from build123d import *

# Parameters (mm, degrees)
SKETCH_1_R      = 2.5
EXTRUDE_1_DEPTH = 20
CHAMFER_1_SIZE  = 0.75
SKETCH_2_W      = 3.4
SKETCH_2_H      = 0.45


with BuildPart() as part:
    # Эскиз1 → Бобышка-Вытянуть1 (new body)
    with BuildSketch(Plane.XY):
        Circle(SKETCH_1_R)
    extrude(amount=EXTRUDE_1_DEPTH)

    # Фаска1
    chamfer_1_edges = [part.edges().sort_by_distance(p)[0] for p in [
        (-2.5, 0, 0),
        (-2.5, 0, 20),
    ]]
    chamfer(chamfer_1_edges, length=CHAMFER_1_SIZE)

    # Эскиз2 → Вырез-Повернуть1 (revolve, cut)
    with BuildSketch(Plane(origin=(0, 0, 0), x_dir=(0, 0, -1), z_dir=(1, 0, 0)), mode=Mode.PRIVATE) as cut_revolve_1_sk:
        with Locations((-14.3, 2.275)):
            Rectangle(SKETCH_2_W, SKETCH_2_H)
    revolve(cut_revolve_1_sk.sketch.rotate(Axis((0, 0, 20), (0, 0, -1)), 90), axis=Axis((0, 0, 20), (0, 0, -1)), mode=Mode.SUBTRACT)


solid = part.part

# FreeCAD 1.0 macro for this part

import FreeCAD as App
import Part
import Sketcher
from FreeCAD import Vector
Q = App.Units.Quantity


def edges_at(feature, points):
    """Names of the edges that pass closest to the given points."""
    edges = feature.Shape.Edges
    near = lambda p: min(range(len(edges)), key=lambda i: edges[i].distToShape(Part.Vertex(*p))[0])
    return sorted({f"Edge{near(p) + 1}" for p in points})


def add_polygon(sketch, points):
    """Adds a closed chain of lines whose ends are joined by coincident constraints."""
    first, n = sketch.GeometryCount, len(points)
    for a, b in zip(points, points[1:] + points[:1]):
        sketch.addGeometry(Part.LineSegment(App.Vector(*a, 0), App.Vector(*b, 0)), False)
    for i in range(n):
        sketch.addConstraint(Sketcher.Constraint("Coincident", first + i, 2, first + (i + 1) % n, 1))

doc = App.newDocument("Part")
params = doc.addObject("Spreadsheet::Sheet", "Params")
for row, (alias, value) in enumerate([
    ("sketch1_diameter", "5 mm"),
    ("pad1_length", "20 mm"),
    ("chamfer_size", "0.75 mm"),
    ("sketch2_height", "3.4 mm"),
    ("sketch2_width", "0.45 mm"),
    ("groove_angle", "360 deg"),
], start=1):
    params.set(f"A{row}", alias)
    params.set(f"B{row}", "=" + value)
    params.setAlias(f"B{row}", alias)

body = doc.addObject("PartDesign::Body", "Body")

sketch1 = body.newObject("Sketcher::SketchObject", "Sketch")
sketch1.AttachmentSupport = (doc.getObject("XY_Plane"), [""])
sketch1.MapMode = "FlatFace"
sketch1.addGeometry(Part.Circle(Vector(0, 0, 0), Vector(0, 0, 1), 2.5), False)
sketch1.addConstraint([
    Sketcher.Constraint("Coincident", 0, 3, -1, 1),
    Sketcher.Constraint("Diameter", 0, Q("5 mm")),
])
sketch1.setExpression("Constraints[1]", "Params.sketch1_diameter")
pad1 = body.newObject("PartDesign::Pad", "Pad")
pad1.Profile = sketch1
pad1.setExpression("Length", "Params.pad1_length")
doc.recompute()

chamfer = body.newObject("PartDesign::Chamfer", "Chamfer")
chamfer.Base = (pad1, edges_at(pad1, [(-2.5, 0, 0), (-2.5, 0, 20)]))
chamfer.setExpression("Size", "Params.chamfer_size")

sketch2 = body.newObject("Sketcher::SketchObject", "Sketch001")
sketch2.AttachmentSupport = (doc.getObject("YZ_Plane"), [""])
sketch2.MapMode = "FlatFace"
add_polygon(sketch2, [(2.5, 16), (2.05, 16), (2.05, 12.6), (2.5, 12.6)])
sketch2.addConstraint([
    Sketcher.Constraint("Horizontal", 0),
    Sketcher.Constraint("Vertical", 1),
    Sketcher.Constraint("Horizontal", 2),
    Sketcher.Constraint("Vertical", 3),
    Sketcher.Constraint("DistanceY", 1, 2, 1, 1, Q("3.4 mm")),
    Sketcher.Constraint("DistanceY", -1, 1, 0, 2, Q("16 mm")),
    Sketcher.Constraint("DistanceX", 0, 2, 0, 1, Q("0.45 mm")),
    Sketcher.Constraint("DistanceX", -1, 1, 2, 2, Q("2.5 mm")),
])
sketch2.setExpression("Constraints[8]", "Params.sketch2_height")
sketch2.setExpression("Constraints[10]", "Params.sketch2_width")
groove = body.newObject("PartDesign::Groove", "Groove")
groove.Profile = sketch2
groove.ReferenceAxis = (sketch2, ["V_Axis"])
groove.setExpression("Angle", "Params.groove_angle")

doc.recompute()
